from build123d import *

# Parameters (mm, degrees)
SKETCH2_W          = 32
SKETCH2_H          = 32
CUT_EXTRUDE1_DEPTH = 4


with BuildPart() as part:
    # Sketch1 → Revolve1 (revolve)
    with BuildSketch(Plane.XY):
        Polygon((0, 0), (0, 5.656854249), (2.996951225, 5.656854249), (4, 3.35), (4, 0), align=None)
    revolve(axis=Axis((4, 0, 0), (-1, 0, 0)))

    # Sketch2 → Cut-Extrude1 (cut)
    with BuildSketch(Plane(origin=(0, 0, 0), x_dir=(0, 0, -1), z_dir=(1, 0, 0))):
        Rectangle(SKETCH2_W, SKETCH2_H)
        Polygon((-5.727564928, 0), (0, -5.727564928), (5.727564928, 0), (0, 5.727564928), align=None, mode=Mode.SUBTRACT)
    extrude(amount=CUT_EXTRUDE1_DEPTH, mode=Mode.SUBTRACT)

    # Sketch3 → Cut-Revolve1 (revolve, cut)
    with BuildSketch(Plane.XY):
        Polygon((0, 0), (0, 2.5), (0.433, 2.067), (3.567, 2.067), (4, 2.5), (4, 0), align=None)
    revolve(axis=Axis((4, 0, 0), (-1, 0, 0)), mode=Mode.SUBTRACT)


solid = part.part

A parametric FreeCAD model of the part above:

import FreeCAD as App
import Part
import Sketcher

V = App.Vector
Q = App.Units.Quantity


def add_polygon(sketch, points):
    """Adds a closed chain of lines whose ends are joined by coincident constraints."""
    first, n = sketch.GeometryCount, len(points)
    for a, b in zip(points, points[1:] + points[:1]):
        sketch.addGeometry(Part.LineSegment(App.Vector(*a, 0), App.Vector(*b, 0)), False)
    for i in range(n):
        sketch.addConstraint(Sketcher.Constraint("Coincident", first + i, 2, first + (i + 1) % n, 1))

doc = App.newDocument("Part")
body = doc.addObject("PartDesign::Body", "Body")

sketch1 = body.newObject("Sketcher::SketchObject", "Sketch")
sketch1.AttachmentSupport = (doc.getObject("XY_Plane"), [""])
sketch1.MapMode = "FlatFace"
add_polygon(sketch1, [(0, 5.7), (0, 0), (4, 0), (4, 3.4), (3, 5.7)])
sketch1.addConstraint([
    Sketcher.Constraint("Vertical", 0),
    Sketcher.Constraint("Horizontal", 1),
    Sketcher.Constraint("Vertical", 2),
    Sketcher.Constraint("Horizontal", 4),
    Sketcher.Constraint("Coincident", 0, 2, -1, 1),
    Sketcher.Constraint("DistanceX", 1, 1, 1, 2, 4.0),
    Sketcher.Constraint("Angle", 3, Q("113.5 deg")),
    Sketcher.Constraint("DistanceY", 2, 1, 2, 2, 3.35),
    Sketcher.Constraint("DistanceX", 4, 2, 4, 1, 2.996951),
])
revolution = body.newObject("PartDesign::Revolution", "Revolution")
revolution.Profile = sketch1
revolution.ReferenceAxis = (sketch1, ["H_Axis"])
revolution.Angle = 360

sketch2 = body.newObject("Sketcher::SketchObject", "Sketch001")
sketch2.AttachmentSupport = (doc.getObject("YZ_Plane"), [""])
sketch2.MapMode = "FlatFace"
add_polygon(sketch2, [(16, 16), (-16, 16), (-16, -16), (16, -16)])
add_polygon(sketch2, [(-6, 0), (0, 6), (6, 0), (0, -6)])
sketch2.addConstraint([
    Sketcher.Constraint("Horizontal", 0),
    Sketcher.Constraint("Vertical", 1),
    Sketcher.Constraint("Horizontal", 2),
    Sketcher.Constraint("Vertical", 3),
    Sketcher.Constraint("Symmetric", 0, 2, 2, 2, -1, 1),
    Sketcher.Constraint("Symmetric", 4, 2, 6, 2, -1, 1),
    Sketcher.Constraint("Symmetric", 5, 2, 7, 2, -1, 1),
    Sketcher.Constraint("PointOnObject", 4, 2, -2),
    Sketcher.Constraint("PointOnObject", 5, 2, -1),
    Sketcher.Constraint("Perpendicular", 4, 5),
    Sketcher.Constraint("Equal", 2, 1),
    Sketcher.Constraint("DistanceX", 0, 2, 0, 1, 32.0),
    Sketcher.Constraint("Distance", 4, 8.1),
])
pocket1 = body.newObject("PartDesign::Pocket", "Pocket")
pocket1.Profile = sketch2
pocket1.Length = 4
pocket1.Reversed = True

sketch3 = body.newObject("Sketcher::SketchObject", "Sketch002")
sketch3.AttachmentSupport = (doc.getObject("XY_Plane"), [""])
sketch3.MapMode = "FlatFace"
add_polygon(sketch3, [(0, 2.5), (0, 0), (4, 0), (4, 2.5), (3.6, 2.1), (0.4, 2.1)])
sketch3.addConstraint([
    Sketcher.Constraint("Vertical", 0),
    Sketcher.Constraint("Horizontal", 1),
    Sketcher.Constraint("Vertical", 2),
    Sketcher.Constraint("Horizontal", 4),
    Sketcher.Constraint("Coincident", 0, 2, -1, 1),
    Sketcher.Constraint("Perpendicular", 3, 5),
    Sketcher.Constraint("Horizontal", 2, 2, 5, 2),
    Sketcher.Constraint("Equal", 3, 5),
    Sketcher.Constraint("DistanceX", 1, 1, 1, 2, 4.0),
    Sketcher.Constraint("DistanceY", 0, 2, 0, 1, 2.5),
    Sketcher.Constraint("DistanceX", 4, 2, 4, 1, 3.134),
])
groove = body.newObject("PartDesign::Groove", "Groove")
groove.Profile = sketch3
groove.ReferenceAxis = (sketch3, ["H_Axis"])
groove.Angle = 360

doc.recompute()
